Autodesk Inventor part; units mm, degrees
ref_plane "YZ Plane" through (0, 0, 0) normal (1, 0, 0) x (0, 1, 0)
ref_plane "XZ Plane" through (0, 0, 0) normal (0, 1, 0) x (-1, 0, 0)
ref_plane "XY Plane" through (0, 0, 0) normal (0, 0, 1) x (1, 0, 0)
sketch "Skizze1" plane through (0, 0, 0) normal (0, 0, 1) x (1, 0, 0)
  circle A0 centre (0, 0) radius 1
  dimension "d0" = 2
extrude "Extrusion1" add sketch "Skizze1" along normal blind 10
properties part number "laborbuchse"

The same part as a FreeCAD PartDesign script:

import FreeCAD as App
import Part
import Sketcher
Q = App.Units.Quantity

doc = App.newDocument("Part")
params = doc.addObject("Spreadsheet::Sheet", "Params")
for row, (alias, value) in enumerate([
    ("sketch1_diameter", "2 mm"),
    ("pad1_length", "10 mm"),
], start=1):
    params.set(f"A{row}", alias)
    params.set(f"B{row}", "=" + value)
    params.setAlias(f"B{row}", alias)

body = doc.addObject("PartDesign::Body", "Body")

sketch1 = body.newObject("Sketcher::SketchObject", "Sketch")
sketch1.AttachmentSupport = (doc.getObject("XY_Plane"), [""])
sketch1.MapMode = "FlatFace"
sketch1.addGeometry(Part.Circle(App.Vector(0, 0, 0), App.Vector(0, 0, 1), 1), False)
sketch1.addConstraint([
    Sketcher.Constraint("Coincident", 0, 3, -1, 1),
    Sketcher.Constraint("Diameter", 0, Q("2 mm")),
])
sketch1.setExpression("Constraints[1]", "Params.sketch1_diameter")
pad1 = body.newObject("PartDesign::Pad", "Pad")
pad1.Profile = sketch1
pad1.setExpression("Length", "Params.pad1_length")

doc.recompute()
